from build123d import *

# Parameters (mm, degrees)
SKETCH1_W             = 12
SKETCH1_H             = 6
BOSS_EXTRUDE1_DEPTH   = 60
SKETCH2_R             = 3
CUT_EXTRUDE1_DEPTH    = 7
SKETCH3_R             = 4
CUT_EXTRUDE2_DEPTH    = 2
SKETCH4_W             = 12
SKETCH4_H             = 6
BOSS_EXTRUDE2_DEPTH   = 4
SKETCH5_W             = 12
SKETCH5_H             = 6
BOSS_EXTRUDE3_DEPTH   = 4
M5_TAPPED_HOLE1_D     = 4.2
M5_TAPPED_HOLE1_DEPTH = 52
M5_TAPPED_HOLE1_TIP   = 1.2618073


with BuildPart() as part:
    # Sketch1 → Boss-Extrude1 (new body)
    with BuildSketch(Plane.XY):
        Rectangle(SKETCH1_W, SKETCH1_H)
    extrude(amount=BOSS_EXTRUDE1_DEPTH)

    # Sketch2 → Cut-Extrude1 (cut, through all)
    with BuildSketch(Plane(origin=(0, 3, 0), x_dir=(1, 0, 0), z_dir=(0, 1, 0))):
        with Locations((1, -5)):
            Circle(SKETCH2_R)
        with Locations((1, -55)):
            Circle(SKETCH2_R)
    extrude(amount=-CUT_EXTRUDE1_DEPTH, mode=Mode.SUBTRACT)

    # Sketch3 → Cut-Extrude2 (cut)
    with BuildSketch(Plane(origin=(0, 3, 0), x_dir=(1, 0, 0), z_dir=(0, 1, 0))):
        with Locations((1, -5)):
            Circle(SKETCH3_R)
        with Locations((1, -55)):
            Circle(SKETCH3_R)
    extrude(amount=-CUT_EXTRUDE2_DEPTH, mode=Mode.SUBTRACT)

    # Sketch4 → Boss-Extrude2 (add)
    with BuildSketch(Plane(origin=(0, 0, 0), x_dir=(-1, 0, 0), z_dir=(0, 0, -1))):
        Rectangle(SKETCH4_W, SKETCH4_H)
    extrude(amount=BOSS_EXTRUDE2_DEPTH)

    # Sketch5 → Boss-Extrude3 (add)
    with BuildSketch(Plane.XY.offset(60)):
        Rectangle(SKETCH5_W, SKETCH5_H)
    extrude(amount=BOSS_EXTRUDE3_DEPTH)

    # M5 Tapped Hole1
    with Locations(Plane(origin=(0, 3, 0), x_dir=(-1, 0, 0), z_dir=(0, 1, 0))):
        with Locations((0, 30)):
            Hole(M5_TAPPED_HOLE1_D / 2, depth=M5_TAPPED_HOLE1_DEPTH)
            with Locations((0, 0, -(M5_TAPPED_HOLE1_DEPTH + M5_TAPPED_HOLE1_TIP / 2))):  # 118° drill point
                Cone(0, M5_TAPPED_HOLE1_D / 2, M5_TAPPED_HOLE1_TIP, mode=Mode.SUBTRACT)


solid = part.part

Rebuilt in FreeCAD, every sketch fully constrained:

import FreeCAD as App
import Part
import Sketcher
from FreeCAD import Vector

doc = App.newDocument("Part")
params = doc.addObject("Spreadsheet::Sheet", "Params")
for row, (alias, value) in enumerate([
    ("sketch1_width", "12 mm"),
    ("sketch1_height", "6 mm"),
    ("pad1_length", "60 mm"),
    ("sketch2_diameter", "6 mm"),
    ("sketch3_diameter", "8 mm"),
    ("pocket2_length", "2 mm"),
    ("sketch4_width", "12 mm"),
    ("sketch4_height", "6 mm"),
    ("pad2_length", "4 mm"),
    ("sketch5_width", "12 mm"),
    ("sketch5_height", "6 mm"),
    ("pad3_length", "4 mm"),
    ("sketch6_diameter", "4.2 mm"),
    ("hole_diameter", "4.2 mm"),
    ("hole_depth", "52 mm"),
], start=1):
    params.set(f"A{row}", alias)
    params.set(f"B{row}", "=" + value)
    params.setAlias(f"B{row}", alias)

body = doc.addObject("PartDesign::Body", "Body")

# Sketch on XY plane
sketch1 = doc.addObject("Sketcher::SketchObject", "Sketch")
body.addObject(sketch1)
sketch1.AttachmentSupport = (doc.XY_Plane, [""])
sketch1.MapMode = "FlatFace"
sketch1.addGeometry([
    Part.LineSegment(Vector(-6, 3, 0), Vector(-6, -3, 0)),
    Part.LineSegment(Vector(-6, -3, 0), Vector(6, -3, 0)),
    Part.LineSegment(Vector(6, -3, 0), Vector(6, 3, 0)),
    Part.LineSegment(Vector(6, 3, 0), Vector(-6, 3, 0)),
], False)
sketch1.addConstraint([
    Sketcher.Constraint("Coincident", 0, 2, 1, 1),
    Sketcher.Constraint("Coincident", 1, 2, 2, 1),
    Sketcher.Constraint("Coincident", 2, 2, 3, 1),
    Sketcher.Constraint("Coincident", 3, 2, 0, 1),
    Sketcher.Constraint("Vertical", 0),
    Sketcher.Constraint("Horizontal", 1),
    Sketcher.Constraint("Vertical", 2),
    Sketcher.Constraint("Horizontal", 3),
    Sketcher.Constraint("Symmetric", 0, 2, 2, 2, -1, 1),
    Sketcher.Constraint("DistanceX", 1, 1, 1, 2, 12.0),
    Sketcher.Constraint("DistanceY", 0, 2, 0, 1, 6.0),
])
sketch1.setExpression("Constraints[9]", "Params.sketch1_width")
sketch1.setExpression("Constraints[10]", "Params.sketch1_height")
pad1 = doc.addObject("PartDesign::Pad", "Pad")
body.addObject(pad1)
pad1.Profile = sketch1
pad1.setExpression("Length", "Params.pad1_length")

# Sketch on XZ plane
sketch2 = doc.addObject("Sketcher::SketchObject", "Sketch001")
body.addObject(sketch2)
sketch2.AttachmentSupport = (doc.XZ_Plane, [""])
sketch2.MapMode = "FlatFace"
sketch2.AttachmentOffset = App.Placement(Vector(0, 0, -3), App.Rotation())
sketch2.addGeometry([
    Part.Circle(Vector(1, 5, 0), Vector(0, 0, 1), 3),
    Part.Circle(Vector(1, 55, 0), Vector(0, 0, 1), 3),
], False)
sketch2.addConstraint([
    Sketcher.Constraint("Equal", 0, 1),
    Sketcher.Constraint("Vertical", 0, 3, 1, 3),
    Sketcher.Constraint("Diameter", 0, 6.0),
    Sketcher.Constraint("DistanceX", -1, 1, 0, 3, 1.0),
    Sketcher.Constraint("DistanceY", -1, 1, 0, 3, 5.0),
    Sketcher.Constraint("DistanceY", -1, 1, 1, 3, 55.0),
])
sketch2.setExpression("Constraints[2]", "Params.sketch2_diameter")
pocket1 = doc.addObject("PartDesign::Pocket", "Pocket")
body.addObject(pocket1)
pocket1.Profile = sketch2
pocket1.Type = "ThroughAll"
pocket1.Reversed = True

# Sketch on XZ plane
sketch3 = doc.addObject("Sketcher::SketchObject", "Sketch002")
body.addObject(sketch3)
sketch3.AttachmentSupport = (doc.XZ_Plane, [""])
sketch3.MapMode = "FlatFace"
sketch3.AttachmentOffset = App.Placement(Vector(0, 0, -3), App.Rotation())
sketch3.addGeometry([
    Part.Circle(Vector(1, 5, 0), Vector(0, 0, 1), 4),
    Part.Circle(Vector(1, 55, 0), Vector(0, 0, 1), 4),
], False)
sketch3.addConstraint([
    Sketcher.Constraint("Equal", 0, 1),
    Sketcher.Constraint("Vertical", 0, 3, 1, 3),
    Sketcher.Constraint("Diameter", 0, 8.0),
    Sketcher.Constraint("DistanceX", -1, 1, 0, 3, 1.0),
    Sketcher.Constraint("DistanceY", -1, 1, 0, 3, 5.0),
    Sketcher.Constraint("DistanceY", -1, 1, 1, 3, 55.0),
])
sketch3.setExpression("Constraints[2]", "Params.sketch3_diameter")
pocket2 = doc.addObject("PartDesign::Pocket", "Pocket001")
body.addObject(pocket2)
pocket2.Profile = sketch3
pocket2.setExpression("Length", "Params.pocket2_length")
pocket2.Reversed = True

# Sketch on XY plane
sketch4 = doc.addObject("Sketcher::SketchObject", "Sketch003")
body.addObject(sketch4)
sketch4.AttachmentSupport = (doc.XY_Plane, [""])
sketch4.MapMode = "FlatFace"
sketch4.addGeometry([
    Part.LineSegment(Vector(6, 3, 0), Vector(6, -3, 0)),
    Part.LineSegment(Vector(6, -3, 0), Vector(-6, -3, 0)),
    Part.LineSegment(Vector(-6, -3, 0), Vector(-6, 3, 0)),
    Part.LineSegment(Vector(-6, 3, 0), Vector(6, 3, 0)),
], False)
sketch4.addConstraint([
    Sketcher.Constraint("Coincident", 0, 2, 1, 1),
    Sketcher.Constraint("Coincident", 1, 2, 2, 1),
    Sketcher.Constraint("Coincident", 2, 2, 3, 1),
    Sketcher.Constraint("Coincident", 3, 2, 0, 1),
    Sketcher.Constraint("Vertical", 0),
    Sketcher.Constraint("Horizontal", 1),
    Sketcher.Constraint("Vertical", 2),
    Sketcher.Constraint("Horizontal", 3),
    Sketcher.Constraint("Symmetric", 0, 2, 2, 2, -1, 1),
    Sketcher.Constraint("DistanceX", 1, 2, 1, 1, 12.0),
    Sketcher.Constraint("DistanceY", 0, 2, 0, 1, 6.0),
])
sketch4.setExpression("Constraints[9]", "Params.sketch4_width")
sketch4.setExpression("Constraints[10]", "Params.sketch4_height")
pad2 = doc.addObject("PartDesign::Pad", "Pad001")
body.addObject(pad2)
pad2.Profile = sketch4
pad2.setExpression("Length", "Params.pad2_length")
pad2.Reversed = True

# Sketch on XY plane
sketch5 = doc.addObject("Sketcher::SketchObject", "Sketch004")
body.addObject(sketch5)
sketch5.AttachmentSupport = (doc.XY_Plane, [""])
sketch5.MapMode = "FlatFace"
sketch5.AttachmentOffset = App.Placement(Vector(0, 0, 60), App.Rotation())
sketch5.addGeometry([
    Part.LineSegment(Vector(-6, 3, 0), Vector(-6, -3, 0)),
    Part.LineSegment(Vector(-6, -3, 0), Vector(6, -3, 0)),
    Part.LineSegment(Vector(6, -3, 0), Vector(6, 3, 0)),
    Part.LineSegment(Vector(6, 3, 0), Vector(-6, 3, 0)),
], False)
sketch5.addConstraint([
    Sketcher.Constraint("Coincident", 0, 2, 1, 1),
    Sketcher.Constraint("Coincident", 1, 2, 2, 1),
    Sketcher.Constraint("Coincident", 2, 2, 3, 1),
    Sketcher.Constraint("Coincident", 3, 2, 0, 1),
    Sketcher.Constraint("Vertical", 0),
    Sketcher.Constraint("Horizontal", 1),
    Sketcher.Constraint("Vertical", 2),
    Sketcher.Constraint("Horizontal", 3),
    Sketcher.Constraint("Symmetric", 0, 2, 2, 2, -1, 1),
    Sketcher.Constraint("DistanceX", 1, 1, 1, 2, 12.0),
    Sketcher.Constraint("DistanceY", 0, 2, 0, 1, 6.0),
])
sketch5.setExpression("Constraints[9]", "Params.sketch5_width")
sketch5.setExpression("Constraints[10]", "Params.sketch5_height")
pad3 = doc.addObject("PartDesign::Pad", "Pad002")
body.addObject(pad3)
pad3.Profile = sketch5
pad3.setExpression("Length", "Params.pad3_length")

# Sketch on XZ plane
sketch6 = doc.addObject("Sketcher::SketchObject", "Sketch005")
body.addObject(sketch6)
sketch6.AttachmentSupport = (doc.XZ_Plane, [""])
sketch6.MapMode = "FlatFace"
sketch6.AttachmentOffset = App.Placement(Vector(0, 0, -3), App.Rotation())
sketch6.addGeometry(Part.Circle(Vector(0, 30, 0), Vector(0, 0, 1), 2.1), False)
sketch6.addConstraint([
    Sketcher.Constraint("PointOnObject", 0, 3, -2),
    Sketcher.Constraint("Diameter", 0, 4.2),
    Sketcher.Constraint("DistanceY", -1, 1, 0, 3, 30.0),
])
sketch6.setExpression("Constraints[1]", "Params.sketch6_diameter")
doc.recompute()
hole = doc.addObject("PartDesign::Hole", "Hole")
body.addObject(hole)
hole.Profile = sketch6
hole.ThreadType = "None"
hole.setExpression("Diameter", "Params.hole_diameter")
hole.DepthType = "Dimension"
hole.setExpression("Depth", "Params.hole_depth")
hole.DrillPoint = "Angled"
hole.DrillPointAngle = 118
hole.Reversed = True

doc.recompute()
